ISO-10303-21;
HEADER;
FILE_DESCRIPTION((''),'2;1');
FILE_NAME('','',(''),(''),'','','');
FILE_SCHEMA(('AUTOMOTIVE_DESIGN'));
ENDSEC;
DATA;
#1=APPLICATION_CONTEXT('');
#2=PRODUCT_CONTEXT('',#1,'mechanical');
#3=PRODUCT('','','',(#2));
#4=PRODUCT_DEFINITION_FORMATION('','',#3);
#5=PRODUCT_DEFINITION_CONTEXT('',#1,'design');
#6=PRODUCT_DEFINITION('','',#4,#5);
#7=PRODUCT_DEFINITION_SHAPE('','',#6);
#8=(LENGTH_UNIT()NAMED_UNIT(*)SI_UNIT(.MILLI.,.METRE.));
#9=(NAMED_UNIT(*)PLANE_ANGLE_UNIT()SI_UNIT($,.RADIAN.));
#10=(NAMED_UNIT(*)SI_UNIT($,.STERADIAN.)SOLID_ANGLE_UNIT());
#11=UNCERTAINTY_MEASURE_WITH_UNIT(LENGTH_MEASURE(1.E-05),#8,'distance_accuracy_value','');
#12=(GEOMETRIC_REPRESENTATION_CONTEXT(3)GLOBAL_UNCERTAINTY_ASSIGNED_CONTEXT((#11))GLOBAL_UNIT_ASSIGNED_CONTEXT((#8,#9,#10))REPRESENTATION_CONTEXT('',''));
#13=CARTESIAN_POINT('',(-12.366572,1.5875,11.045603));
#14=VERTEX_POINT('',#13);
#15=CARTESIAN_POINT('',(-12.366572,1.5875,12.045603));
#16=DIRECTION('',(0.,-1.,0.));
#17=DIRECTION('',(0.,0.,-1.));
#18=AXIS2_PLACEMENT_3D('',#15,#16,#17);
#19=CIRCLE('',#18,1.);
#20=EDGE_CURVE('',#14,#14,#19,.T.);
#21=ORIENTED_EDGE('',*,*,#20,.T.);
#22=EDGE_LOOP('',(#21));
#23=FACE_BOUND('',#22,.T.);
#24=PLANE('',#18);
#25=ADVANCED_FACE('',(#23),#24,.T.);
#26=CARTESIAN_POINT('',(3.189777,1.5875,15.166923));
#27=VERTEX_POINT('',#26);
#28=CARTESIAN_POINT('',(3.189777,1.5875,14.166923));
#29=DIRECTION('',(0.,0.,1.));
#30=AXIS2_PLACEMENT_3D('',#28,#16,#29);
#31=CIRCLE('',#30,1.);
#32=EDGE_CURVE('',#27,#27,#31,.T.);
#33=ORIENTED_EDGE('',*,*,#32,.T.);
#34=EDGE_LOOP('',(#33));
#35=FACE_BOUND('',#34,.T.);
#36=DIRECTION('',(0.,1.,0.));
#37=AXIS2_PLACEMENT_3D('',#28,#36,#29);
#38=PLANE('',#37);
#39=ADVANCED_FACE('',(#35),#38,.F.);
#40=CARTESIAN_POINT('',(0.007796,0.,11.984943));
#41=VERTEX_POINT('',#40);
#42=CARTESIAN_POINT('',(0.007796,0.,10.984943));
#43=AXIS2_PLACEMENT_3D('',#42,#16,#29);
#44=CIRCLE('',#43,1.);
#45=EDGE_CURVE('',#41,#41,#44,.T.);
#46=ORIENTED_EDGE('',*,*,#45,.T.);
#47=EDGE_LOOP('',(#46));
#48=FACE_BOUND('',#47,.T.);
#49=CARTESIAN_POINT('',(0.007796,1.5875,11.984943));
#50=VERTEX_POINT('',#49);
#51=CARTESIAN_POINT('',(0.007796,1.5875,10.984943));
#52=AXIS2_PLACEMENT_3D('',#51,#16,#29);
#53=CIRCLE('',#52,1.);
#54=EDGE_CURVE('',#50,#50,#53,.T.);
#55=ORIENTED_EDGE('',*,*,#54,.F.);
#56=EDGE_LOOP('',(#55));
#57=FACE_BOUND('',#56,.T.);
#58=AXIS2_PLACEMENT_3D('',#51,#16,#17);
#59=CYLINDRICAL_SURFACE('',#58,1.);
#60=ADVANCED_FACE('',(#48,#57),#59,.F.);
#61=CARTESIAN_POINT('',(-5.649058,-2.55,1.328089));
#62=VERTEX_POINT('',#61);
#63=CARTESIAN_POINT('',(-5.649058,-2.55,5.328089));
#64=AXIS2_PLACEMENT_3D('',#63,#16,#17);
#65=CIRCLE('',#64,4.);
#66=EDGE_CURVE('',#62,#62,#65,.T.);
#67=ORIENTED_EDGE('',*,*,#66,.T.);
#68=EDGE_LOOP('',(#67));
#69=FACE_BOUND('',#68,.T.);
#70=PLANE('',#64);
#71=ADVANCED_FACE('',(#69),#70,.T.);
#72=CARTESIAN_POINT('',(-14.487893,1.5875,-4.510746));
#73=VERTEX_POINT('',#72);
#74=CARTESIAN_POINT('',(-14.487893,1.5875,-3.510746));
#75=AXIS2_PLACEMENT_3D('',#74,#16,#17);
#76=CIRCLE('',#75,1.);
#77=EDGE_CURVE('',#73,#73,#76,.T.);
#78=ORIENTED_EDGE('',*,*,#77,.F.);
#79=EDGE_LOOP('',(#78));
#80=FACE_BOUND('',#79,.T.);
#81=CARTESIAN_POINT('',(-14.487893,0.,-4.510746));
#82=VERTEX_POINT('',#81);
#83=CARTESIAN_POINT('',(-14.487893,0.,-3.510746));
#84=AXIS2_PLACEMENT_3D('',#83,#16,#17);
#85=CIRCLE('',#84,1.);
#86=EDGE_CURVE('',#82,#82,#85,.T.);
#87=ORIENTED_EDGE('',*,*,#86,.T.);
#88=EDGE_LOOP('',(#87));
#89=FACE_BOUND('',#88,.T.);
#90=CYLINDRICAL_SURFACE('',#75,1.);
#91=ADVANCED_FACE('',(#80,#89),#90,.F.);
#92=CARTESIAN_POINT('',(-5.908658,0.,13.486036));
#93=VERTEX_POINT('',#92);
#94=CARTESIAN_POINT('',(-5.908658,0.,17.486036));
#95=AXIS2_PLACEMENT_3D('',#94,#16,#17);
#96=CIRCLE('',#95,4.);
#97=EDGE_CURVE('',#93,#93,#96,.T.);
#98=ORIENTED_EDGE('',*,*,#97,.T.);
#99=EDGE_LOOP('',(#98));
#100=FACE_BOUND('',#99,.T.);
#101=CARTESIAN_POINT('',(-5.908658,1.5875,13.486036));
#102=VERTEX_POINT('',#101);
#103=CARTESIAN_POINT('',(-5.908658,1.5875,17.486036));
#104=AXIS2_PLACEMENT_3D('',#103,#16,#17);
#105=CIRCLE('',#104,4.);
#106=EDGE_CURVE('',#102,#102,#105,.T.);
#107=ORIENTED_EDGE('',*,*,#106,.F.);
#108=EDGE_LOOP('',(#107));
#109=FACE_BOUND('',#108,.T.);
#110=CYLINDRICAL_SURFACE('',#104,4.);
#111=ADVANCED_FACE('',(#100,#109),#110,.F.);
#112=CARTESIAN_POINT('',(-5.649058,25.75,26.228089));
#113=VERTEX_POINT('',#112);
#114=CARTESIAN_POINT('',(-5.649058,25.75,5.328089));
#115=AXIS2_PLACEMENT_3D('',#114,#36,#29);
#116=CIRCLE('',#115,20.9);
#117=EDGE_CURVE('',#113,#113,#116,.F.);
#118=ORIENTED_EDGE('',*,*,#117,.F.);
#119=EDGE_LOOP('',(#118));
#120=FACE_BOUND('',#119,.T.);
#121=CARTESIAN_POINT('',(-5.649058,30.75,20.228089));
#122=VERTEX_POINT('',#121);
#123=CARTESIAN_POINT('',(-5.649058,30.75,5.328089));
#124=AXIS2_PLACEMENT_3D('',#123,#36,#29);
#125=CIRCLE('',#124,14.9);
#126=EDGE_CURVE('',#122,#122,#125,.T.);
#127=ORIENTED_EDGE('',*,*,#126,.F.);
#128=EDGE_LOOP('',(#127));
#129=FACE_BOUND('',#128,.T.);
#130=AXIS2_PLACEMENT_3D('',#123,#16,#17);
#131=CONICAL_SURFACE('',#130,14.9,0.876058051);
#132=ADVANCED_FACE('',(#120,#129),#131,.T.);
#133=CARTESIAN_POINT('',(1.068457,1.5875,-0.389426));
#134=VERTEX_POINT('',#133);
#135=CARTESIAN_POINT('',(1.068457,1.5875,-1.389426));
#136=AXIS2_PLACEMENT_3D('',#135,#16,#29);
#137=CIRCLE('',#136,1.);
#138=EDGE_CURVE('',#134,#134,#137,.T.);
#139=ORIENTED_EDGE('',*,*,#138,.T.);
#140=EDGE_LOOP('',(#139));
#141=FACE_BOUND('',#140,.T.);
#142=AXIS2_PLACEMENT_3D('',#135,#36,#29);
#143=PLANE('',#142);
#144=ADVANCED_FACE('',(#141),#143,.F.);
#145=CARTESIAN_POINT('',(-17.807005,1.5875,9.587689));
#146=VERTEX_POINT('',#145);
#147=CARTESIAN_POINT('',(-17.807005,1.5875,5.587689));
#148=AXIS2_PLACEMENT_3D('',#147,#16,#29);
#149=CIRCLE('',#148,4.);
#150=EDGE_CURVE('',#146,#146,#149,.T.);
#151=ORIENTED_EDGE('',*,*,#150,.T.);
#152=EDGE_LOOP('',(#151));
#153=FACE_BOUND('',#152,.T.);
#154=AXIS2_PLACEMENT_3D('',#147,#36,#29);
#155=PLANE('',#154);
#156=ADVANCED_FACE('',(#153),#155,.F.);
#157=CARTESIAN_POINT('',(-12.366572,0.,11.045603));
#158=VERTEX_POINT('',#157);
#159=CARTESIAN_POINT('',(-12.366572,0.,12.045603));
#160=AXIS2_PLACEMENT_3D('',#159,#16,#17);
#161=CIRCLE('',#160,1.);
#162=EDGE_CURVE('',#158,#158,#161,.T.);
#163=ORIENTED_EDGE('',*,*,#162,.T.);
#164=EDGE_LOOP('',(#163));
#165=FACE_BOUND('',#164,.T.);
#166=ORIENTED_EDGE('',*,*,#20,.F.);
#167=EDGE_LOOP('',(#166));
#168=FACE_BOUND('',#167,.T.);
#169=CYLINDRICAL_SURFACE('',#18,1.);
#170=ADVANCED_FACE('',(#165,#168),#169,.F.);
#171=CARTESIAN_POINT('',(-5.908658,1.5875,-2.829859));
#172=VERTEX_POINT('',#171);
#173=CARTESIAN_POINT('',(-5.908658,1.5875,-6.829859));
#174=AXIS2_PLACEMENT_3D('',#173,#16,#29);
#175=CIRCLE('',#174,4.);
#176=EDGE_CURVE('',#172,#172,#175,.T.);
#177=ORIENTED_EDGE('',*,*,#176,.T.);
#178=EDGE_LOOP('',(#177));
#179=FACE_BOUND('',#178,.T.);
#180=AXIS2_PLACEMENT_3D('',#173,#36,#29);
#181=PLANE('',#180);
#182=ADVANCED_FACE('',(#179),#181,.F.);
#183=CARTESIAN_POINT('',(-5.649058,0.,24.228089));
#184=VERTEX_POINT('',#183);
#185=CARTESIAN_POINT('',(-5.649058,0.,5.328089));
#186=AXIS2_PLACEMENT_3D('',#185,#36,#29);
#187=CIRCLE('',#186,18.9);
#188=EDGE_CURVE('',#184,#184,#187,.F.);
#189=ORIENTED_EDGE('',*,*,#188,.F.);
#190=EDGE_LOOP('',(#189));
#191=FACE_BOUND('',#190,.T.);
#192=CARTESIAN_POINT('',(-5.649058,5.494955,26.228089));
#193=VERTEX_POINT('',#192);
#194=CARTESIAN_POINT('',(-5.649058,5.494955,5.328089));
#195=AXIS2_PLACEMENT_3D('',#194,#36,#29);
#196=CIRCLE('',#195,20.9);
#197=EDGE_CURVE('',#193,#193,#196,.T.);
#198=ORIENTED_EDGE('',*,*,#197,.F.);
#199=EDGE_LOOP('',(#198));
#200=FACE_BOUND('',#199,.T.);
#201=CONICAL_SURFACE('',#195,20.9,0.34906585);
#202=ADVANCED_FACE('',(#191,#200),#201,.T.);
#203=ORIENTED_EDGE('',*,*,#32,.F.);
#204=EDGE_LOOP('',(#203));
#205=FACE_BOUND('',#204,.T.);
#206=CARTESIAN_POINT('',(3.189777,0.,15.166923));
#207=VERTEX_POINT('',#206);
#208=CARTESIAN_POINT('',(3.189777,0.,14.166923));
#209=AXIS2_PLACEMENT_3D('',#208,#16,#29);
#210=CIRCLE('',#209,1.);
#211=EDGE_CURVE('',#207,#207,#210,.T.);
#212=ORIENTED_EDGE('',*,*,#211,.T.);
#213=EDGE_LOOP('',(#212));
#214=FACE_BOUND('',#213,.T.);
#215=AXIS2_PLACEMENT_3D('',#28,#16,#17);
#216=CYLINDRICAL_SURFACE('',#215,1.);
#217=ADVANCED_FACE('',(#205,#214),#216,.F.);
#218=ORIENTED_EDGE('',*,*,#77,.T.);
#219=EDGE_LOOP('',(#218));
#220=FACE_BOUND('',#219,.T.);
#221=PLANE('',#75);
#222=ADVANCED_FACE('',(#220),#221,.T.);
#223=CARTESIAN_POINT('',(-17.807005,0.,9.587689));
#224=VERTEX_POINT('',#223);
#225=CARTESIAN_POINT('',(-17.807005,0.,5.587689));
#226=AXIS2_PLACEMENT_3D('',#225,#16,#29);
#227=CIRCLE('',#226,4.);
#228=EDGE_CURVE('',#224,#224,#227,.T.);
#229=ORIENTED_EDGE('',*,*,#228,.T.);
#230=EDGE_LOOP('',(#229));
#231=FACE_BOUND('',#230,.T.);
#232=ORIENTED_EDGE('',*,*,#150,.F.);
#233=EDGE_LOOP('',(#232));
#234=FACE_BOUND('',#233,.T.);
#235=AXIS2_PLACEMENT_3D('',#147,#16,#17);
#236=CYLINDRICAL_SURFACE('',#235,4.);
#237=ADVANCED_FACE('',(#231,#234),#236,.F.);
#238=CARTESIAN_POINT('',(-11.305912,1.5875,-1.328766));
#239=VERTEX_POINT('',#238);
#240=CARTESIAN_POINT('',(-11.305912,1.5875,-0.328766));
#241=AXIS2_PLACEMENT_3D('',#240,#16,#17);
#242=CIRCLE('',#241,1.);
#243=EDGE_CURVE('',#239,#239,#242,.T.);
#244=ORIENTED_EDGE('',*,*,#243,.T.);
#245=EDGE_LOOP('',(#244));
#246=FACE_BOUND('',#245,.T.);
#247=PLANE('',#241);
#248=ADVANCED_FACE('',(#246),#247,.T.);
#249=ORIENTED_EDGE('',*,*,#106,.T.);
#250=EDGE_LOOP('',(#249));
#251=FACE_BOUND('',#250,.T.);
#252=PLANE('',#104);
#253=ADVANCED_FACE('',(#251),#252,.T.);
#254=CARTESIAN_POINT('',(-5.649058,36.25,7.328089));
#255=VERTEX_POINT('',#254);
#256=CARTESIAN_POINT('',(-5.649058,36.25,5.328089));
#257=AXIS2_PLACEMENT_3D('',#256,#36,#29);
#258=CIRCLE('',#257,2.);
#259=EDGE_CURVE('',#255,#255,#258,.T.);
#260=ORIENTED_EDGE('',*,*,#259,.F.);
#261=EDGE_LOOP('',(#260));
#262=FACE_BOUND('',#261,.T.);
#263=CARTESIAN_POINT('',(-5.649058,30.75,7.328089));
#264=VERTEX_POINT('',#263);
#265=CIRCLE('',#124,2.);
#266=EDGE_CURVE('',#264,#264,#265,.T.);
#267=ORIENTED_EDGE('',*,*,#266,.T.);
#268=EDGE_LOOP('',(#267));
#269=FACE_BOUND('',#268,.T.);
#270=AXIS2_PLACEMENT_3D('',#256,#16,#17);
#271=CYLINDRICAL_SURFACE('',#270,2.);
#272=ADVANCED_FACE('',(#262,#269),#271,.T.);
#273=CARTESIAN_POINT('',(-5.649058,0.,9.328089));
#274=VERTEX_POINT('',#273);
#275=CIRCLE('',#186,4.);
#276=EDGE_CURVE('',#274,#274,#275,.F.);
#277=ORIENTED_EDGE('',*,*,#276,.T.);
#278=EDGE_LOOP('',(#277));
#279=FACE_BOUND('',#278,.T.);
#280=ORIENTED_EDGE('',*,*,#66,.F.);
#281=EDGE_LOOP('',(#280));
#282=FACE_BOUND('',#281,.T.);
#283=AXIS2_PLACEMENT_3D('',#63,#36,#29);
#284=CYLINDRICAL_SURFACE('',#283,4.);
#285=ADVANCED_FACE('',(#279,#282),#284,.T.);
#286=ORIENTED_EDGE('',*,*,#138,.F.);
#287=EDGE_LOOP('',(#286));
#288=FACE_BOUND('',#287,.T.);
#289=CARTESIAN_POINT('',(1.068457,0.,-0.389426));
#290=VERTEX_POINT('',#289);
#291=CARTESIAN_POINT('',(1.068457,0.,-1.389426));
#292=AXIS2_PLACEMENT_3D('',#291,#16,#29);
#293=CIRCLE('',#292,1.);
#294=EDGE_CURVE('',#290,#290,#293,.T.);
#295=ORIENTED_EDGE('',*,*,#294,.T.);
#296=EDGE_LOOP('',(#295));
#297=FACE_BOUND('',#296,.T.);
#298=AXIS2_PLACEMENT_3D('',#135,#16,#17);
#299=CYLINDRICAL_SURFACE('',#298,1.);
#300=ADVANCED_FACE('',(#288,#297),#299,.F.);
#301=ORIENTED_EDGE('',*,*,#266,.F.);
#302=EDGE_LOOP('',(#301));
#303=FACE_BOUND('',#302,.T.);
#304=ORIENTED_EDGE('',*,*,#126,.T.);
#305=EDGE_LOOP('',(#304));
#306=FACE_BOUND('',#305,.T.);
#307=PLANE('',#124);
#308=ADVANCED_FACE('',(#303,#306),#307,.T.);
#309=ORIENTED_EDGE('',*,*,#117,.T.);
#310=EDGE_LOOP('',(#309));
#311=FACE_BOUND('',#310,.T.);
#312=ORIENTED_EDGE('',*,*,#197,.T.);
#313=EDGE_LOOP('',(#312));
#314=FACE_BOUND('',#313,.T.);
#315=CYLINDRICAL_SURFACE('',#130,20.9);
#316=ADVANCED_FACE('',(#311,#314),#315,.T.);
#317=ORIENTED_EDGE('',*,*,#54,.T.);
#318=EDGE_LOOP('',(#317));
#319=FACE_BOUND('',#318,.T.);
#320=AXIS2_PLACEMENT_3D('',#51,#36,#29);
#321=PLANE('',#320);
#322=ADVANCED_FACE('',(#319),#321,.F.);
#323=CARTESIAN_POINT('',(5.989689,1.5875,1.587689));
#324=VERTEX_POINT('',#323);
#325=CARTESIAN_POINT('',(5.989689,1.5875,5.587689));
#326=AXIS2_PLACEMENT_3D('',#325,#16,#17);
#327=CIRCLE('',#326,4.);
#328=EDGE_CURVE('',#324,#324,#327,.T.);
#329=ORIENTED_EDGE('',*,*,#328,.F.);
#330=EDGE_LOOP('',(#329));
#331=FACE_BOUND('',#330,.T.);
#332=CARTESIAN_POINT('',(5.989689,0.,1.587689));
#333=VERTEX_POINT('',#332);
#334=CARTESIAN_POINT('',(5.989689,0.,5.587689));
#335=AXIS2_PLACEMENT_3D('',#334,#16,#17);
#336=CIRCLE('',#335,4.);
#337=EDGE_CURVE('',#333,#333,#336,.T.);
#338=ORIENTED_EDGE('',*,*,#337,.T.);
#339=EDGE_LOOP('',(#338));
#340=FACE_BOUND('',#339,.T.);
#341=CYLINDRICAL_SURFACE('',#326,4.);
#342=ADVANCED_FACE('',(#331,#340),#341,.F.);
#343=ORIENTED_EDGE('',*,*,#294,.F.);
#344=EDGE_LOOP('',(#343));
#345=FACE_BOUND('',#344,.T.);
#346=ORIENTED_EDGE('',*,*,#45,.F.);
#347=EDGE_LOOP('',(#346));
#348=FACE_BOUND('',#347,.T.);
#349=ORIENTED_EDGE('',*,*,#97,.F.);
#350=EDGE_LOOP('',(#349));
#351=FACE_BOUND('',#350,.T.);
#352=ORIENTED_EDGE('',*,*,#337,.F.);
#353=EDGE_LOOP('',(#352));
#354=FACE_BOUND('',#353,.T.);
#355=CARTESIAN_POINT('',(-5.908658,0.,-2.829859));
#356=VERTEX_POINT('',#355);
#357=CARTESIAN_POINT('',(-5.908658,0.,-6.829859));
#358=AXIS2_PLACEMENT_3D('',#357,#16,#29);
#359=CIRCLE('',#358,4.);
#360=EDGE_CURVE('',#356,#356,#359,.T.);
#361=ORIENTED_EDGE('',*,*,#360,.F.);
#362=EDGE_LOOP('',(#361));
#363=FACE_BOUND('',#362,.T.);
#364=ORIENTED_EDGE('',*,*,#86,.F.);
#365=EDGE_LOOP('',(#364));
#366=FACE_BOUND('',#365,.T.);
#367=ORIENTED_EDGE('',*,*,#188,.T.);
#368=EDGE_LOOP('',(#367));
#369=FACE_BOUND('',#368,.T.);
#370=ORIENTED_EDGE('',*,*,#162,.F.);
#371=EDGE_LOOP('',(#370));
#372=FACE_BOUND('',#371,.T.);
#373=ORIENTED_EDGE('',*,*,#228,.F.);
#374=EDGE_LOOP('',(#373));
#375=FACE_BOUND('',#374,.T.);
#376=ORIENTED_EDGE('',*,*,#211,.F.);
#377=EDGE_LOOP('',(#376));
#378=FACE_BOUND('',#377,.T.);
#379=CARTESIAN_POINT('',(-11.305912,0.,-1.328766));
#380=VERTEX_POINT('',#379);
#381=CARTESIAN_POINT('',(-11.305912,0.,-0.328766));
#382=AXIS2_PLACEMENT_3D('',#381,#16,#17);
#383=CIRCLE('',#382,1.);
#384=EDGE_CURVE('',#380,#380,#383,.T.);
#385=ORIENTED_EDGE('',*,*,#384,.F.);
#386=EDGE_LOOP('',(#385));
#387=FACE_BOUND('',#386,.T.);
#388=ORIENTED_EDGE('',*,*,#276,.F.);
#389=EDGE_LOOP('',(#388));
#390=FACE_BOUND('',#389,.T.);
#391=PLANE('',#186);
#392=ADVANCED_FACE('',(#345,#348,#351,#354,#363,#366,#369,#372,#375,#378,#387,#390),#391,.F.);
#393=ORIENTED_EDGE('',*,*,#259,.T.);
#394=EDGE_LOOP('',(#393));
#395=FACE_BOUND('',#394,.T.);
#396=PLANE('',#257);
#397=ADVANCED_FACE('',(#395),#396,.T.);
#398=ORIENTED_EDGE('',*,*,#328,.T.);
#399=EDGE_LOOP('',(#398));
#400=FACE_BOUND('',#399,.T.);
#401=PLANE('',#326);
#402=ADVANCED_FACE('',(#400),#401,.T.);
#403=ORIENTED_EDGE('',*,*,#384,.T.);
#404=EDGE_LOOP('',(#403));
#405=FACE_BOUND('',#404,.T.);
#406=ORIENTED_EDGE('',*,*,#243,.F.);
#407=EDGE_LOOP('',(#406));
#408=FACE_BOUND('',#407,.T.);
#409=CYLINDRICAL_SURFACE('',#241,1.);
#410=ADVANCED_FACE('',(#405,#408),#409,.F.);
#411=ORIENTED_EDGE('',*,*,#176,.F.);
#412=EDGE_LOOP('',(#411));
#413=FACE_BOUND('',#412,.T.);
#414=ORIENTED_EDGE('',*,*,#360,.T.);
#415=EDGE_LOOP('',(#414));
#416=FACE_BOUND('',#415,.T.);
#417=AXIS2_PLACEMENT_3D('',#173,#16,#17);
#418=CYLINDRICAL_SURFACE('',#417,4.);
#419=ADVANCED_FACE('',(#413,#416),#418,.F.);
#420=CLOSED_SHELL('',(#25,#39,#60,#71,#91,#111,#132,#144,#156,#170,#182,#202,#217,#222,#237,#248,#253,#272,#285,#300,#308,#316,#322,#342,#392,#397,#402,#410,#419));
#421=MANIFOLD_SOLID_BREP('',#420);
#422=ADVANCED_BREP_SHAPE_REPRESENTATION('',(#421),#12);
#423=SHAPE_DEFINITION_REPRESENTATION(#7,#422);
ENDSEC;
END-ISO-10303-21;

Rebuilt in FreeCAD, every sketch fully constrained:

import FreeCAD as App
import Part
import Sketcher

V = App.Vector


def edges_at(feature, points):
    """Names of the edges that pass closest to the given points."""
    edges = feature.Shape.Edges
    near = lambda p: min(range(len(edges)), key=lambda i: edges[i].distToShape(Part.Vertex(*p))[0])
    return sorted({f"Edge{near(p) + 1}" for p in points})

doc = App.newDocument("Part")
body = doc.addObject("PartDesign::Body", "Body")

# Sketch on XZ plane
sketch1 = body.newObject("Sketcher::SketchObject", "Sketch")
sketch1.AttachmentSupport = (doc.getObject("XZ_Plane"), [""])
sketch1.MapMode = "FlatFace"
sketch1.addGeometry(Part.Circle(V(-6, 5, 0), V(0, 0, 1), 21), False)
sketch1.addConstraint([
    Sketcher.Constraint("Diameter", 0, 41.8),
    Sketcher.Constraint("DistanceY", -1, 1, 0, 3, 5.328089),
    Sketcher.Constraint("DistanceX", 0, 3, -1, 1, 5.649058),
])
pad1 = body.newObject("PartDesign::Pad", "Pad")
pad1.Profile = sketch1
pad1.Length = 30.75
pad1.Reversed = True
doc.recompute()

chamfer = body.newObject("PartDesign::Chamfer", "Chamfer")
chamfer.Base = (pad1, edges_at(pad1, [(-5.649, 30.75, -15.572)]))
chamfer.ChamferType = "Two distances"
chamfer.Size = 5
chamfer.Size2 = 6
doc.recompute()

chamfer2 = body.newObject("PartDesign::Chamfer", "Chamfer001")
chamfer2.Base = (chamfer, edges_at(chamfer, [(-5.649, 0, -15.572)]))
chamfer2.ChamferType = "Two distances"
chamfer2.Size = 2
chamfer2.Size2 = 5.494955
chamfer2.FlipDirection = True

# Sketch on XZ plane
sketch2 = body.newObject("Sketcher::SketchObject", "Sketch001")
sketch2.AttachmentSupport = (doc.getObject("XZ_Plane"), [""])
sketch2.MapMode = "FlatFace"
sketch2.AttachmentOffset = App.Placement(V(0, 0, -30.75), App.Rotation())
sketch2.addGeometry(Part.Circle(V(-5.6, 5.3, 0), V(0, 0, 1), 2), False)
sketch2.addConstraint([
    Sketcher.Constraint("Diameter", 0, 4.0),
    Sketcher.Constraint("DistanceY", -1, 1, 0, 3, 5.328089),
    Sketcher.Constraint("DistanceX", 0, 3, -1, 1, 5.649058),
])
pad2 = body.newObject("PartDesign::Pad", "Pad001")
pad2.Profile = sketch2
pad2.Length = 5.5
pad2.Reversed = True

# Sketch on XZ plane
sketch3 = body.newObject("Sketcher::SketchObject", "Sketch002")
sketch3.AttachmentSupport = (doc.getObject("XZ_Plane"), [""])
sketch3.MapMode = "FlatFace"
sketch3.addGeometry(Part.Circle(V(-5.6, 5.3, 0), V(0, 0, 1), 4), False)
sketch3.addConstraint([
    Sketcher.Constraint("Diameter", 0, 8.0),
    Sketcher.Constraint("DistanceY", -1, 1, 0, 3, 5.328089),
    Sketcher.Constraint("DistanceX", 0, 3, -1, 1, 5.649058),
])
pad3 = body.newObject("PartDesign::Pad", "Pad002")
pad3.Profile = sketch3
pad3.Length = 2.55

# Sketch on XZ plane
sketch4 = body.newObject("Sketcher::SketchObject", "Sketch003")
sketch4.AttachmentSupport = (doc.getObject("XZ_Plane"), [""])
sketch4.MapMode = "FlatFace"
sketch4.addGeometry([
    Part.Circle(V(-5.9, 17.5, 0), V(0, 0, 1), 4),  # 0
    Part.Circle(V(-5.9, -6.8, 0), V(0, 0, 1), 4),  # 1
    Part.Circle(V(-17.8, 5.6, 0), V(0, 0, 1), 4),  # 2
    Part.Circle(V(6, 5.6, 0), V(0, 0, 1), 4),  # 3
    Part.Circle(V(-12.4, 12, 0), V(0, 0, 1), 1),  # 4
    Part.Circle(V(1.1, -1.4, 0), V(0, 0, 1), 1),  # 5
    Part.Circle(V(-11.3, -0.3, 0), V(0, 0, 1), 1),  # 6
    Part.Circle(V(0, 11, 0), V(0, 0, 1), 1),  # 7
    Part.Circle(V(-14.5, -3.5, 0), V(0, 0, 1), 1),  # 8
    Part.Circle(V(3.2, 14.2, 0), V(0, 0, 1), 1),  # 9
], False)
sketch4.addConstraint([
    Sketcher.Constraint("Equal", 0, 1),
    Sketcher.Constraint("Equal", 1, 2),
    Sketcher.Constraint("Equal", 2, 3),
    Sketcher.Constraint("Equal", 4, 5),
    Sketcher.Constraint("Equal", 5, 6),
    Sketcher.Constraint("Equal", 6, 7),
    Sketcher.Constraint("Equal", 7, 8),
    Sketcher.Constraint("Equal", 8, 9),
    Sketcher.Constraint("Horizontal", 2, 3, 3, 3),
    Sketcher.Constraint("Vertical", 0, 3, 1, 3),
    Sketcher.Constraint("Diameter", 0, 8.0),
    Sketcher.Constraint("Diameter", 4, 2.0),
    Sketcher.Constraint("DistanceX", 6, 3, 3, 3, 17.295601),
    Sketcher.Constraint("DistanceX", 0, 3, -1, 1, 5.908658),
    Sketcher.Constraint("DistanceY", 1, 3, -1, 1, 6.829859),
    Sketcher.Constraint("DistanceY", -1, 1, 2, 3, 5.587689),
    Sketcher.Constraint("DistanceX", -1, 1, 3, 3, 5.989689),
    Sketcher.Constraint("DistanceX", 4, 3, 3, 3, 18.356261),
    Sketcher.Constraint("DistanceY", 1, 3, 4, 3, 18.875462),
    Sketcher.Constraint("DistanceX", 4, 3, 5, 3, 13.435029),
    Sketcher.Constraint("DistanceY", 5, 3, 4, 3, 13.435029),
    Sketcher.Constraint("DistanceY", 5, 3, 0, 3, 18.875462),
    Sketcher.Constraint("DistanceX", 2, 3, 5, 3, 18.875462),
    Sketcher.Constraint("DistanceY", 5, 3, 6, 3, 1.06066),
    Sketcher.Constraint("DistanceX", 7, 3, 5, 3, 1.06066),
    Sketcher.Constraint("DistanceY", 5, 3, 7, 3, 12.374369),
    Sketcher.Constraint("DistanceX", 8, 3, 6, 3, 3.181981),
    Sketcher.Constraint("DistanceY", 8, 3, 6, 3, 3.181981),
    Sketcher.Constraint("DistanceX", 7, 3, 9, 3, 3.181981),
    Sketcher.Constraint("DistanceY", 7, 3, 9, 3, 3.181981),
])
pocket1 = body.newObject("PartDesign::Pocket", "Pocket")
pocket1.Profile = sketch4
pocket1.Length = 1.5875

doc.recompute()
